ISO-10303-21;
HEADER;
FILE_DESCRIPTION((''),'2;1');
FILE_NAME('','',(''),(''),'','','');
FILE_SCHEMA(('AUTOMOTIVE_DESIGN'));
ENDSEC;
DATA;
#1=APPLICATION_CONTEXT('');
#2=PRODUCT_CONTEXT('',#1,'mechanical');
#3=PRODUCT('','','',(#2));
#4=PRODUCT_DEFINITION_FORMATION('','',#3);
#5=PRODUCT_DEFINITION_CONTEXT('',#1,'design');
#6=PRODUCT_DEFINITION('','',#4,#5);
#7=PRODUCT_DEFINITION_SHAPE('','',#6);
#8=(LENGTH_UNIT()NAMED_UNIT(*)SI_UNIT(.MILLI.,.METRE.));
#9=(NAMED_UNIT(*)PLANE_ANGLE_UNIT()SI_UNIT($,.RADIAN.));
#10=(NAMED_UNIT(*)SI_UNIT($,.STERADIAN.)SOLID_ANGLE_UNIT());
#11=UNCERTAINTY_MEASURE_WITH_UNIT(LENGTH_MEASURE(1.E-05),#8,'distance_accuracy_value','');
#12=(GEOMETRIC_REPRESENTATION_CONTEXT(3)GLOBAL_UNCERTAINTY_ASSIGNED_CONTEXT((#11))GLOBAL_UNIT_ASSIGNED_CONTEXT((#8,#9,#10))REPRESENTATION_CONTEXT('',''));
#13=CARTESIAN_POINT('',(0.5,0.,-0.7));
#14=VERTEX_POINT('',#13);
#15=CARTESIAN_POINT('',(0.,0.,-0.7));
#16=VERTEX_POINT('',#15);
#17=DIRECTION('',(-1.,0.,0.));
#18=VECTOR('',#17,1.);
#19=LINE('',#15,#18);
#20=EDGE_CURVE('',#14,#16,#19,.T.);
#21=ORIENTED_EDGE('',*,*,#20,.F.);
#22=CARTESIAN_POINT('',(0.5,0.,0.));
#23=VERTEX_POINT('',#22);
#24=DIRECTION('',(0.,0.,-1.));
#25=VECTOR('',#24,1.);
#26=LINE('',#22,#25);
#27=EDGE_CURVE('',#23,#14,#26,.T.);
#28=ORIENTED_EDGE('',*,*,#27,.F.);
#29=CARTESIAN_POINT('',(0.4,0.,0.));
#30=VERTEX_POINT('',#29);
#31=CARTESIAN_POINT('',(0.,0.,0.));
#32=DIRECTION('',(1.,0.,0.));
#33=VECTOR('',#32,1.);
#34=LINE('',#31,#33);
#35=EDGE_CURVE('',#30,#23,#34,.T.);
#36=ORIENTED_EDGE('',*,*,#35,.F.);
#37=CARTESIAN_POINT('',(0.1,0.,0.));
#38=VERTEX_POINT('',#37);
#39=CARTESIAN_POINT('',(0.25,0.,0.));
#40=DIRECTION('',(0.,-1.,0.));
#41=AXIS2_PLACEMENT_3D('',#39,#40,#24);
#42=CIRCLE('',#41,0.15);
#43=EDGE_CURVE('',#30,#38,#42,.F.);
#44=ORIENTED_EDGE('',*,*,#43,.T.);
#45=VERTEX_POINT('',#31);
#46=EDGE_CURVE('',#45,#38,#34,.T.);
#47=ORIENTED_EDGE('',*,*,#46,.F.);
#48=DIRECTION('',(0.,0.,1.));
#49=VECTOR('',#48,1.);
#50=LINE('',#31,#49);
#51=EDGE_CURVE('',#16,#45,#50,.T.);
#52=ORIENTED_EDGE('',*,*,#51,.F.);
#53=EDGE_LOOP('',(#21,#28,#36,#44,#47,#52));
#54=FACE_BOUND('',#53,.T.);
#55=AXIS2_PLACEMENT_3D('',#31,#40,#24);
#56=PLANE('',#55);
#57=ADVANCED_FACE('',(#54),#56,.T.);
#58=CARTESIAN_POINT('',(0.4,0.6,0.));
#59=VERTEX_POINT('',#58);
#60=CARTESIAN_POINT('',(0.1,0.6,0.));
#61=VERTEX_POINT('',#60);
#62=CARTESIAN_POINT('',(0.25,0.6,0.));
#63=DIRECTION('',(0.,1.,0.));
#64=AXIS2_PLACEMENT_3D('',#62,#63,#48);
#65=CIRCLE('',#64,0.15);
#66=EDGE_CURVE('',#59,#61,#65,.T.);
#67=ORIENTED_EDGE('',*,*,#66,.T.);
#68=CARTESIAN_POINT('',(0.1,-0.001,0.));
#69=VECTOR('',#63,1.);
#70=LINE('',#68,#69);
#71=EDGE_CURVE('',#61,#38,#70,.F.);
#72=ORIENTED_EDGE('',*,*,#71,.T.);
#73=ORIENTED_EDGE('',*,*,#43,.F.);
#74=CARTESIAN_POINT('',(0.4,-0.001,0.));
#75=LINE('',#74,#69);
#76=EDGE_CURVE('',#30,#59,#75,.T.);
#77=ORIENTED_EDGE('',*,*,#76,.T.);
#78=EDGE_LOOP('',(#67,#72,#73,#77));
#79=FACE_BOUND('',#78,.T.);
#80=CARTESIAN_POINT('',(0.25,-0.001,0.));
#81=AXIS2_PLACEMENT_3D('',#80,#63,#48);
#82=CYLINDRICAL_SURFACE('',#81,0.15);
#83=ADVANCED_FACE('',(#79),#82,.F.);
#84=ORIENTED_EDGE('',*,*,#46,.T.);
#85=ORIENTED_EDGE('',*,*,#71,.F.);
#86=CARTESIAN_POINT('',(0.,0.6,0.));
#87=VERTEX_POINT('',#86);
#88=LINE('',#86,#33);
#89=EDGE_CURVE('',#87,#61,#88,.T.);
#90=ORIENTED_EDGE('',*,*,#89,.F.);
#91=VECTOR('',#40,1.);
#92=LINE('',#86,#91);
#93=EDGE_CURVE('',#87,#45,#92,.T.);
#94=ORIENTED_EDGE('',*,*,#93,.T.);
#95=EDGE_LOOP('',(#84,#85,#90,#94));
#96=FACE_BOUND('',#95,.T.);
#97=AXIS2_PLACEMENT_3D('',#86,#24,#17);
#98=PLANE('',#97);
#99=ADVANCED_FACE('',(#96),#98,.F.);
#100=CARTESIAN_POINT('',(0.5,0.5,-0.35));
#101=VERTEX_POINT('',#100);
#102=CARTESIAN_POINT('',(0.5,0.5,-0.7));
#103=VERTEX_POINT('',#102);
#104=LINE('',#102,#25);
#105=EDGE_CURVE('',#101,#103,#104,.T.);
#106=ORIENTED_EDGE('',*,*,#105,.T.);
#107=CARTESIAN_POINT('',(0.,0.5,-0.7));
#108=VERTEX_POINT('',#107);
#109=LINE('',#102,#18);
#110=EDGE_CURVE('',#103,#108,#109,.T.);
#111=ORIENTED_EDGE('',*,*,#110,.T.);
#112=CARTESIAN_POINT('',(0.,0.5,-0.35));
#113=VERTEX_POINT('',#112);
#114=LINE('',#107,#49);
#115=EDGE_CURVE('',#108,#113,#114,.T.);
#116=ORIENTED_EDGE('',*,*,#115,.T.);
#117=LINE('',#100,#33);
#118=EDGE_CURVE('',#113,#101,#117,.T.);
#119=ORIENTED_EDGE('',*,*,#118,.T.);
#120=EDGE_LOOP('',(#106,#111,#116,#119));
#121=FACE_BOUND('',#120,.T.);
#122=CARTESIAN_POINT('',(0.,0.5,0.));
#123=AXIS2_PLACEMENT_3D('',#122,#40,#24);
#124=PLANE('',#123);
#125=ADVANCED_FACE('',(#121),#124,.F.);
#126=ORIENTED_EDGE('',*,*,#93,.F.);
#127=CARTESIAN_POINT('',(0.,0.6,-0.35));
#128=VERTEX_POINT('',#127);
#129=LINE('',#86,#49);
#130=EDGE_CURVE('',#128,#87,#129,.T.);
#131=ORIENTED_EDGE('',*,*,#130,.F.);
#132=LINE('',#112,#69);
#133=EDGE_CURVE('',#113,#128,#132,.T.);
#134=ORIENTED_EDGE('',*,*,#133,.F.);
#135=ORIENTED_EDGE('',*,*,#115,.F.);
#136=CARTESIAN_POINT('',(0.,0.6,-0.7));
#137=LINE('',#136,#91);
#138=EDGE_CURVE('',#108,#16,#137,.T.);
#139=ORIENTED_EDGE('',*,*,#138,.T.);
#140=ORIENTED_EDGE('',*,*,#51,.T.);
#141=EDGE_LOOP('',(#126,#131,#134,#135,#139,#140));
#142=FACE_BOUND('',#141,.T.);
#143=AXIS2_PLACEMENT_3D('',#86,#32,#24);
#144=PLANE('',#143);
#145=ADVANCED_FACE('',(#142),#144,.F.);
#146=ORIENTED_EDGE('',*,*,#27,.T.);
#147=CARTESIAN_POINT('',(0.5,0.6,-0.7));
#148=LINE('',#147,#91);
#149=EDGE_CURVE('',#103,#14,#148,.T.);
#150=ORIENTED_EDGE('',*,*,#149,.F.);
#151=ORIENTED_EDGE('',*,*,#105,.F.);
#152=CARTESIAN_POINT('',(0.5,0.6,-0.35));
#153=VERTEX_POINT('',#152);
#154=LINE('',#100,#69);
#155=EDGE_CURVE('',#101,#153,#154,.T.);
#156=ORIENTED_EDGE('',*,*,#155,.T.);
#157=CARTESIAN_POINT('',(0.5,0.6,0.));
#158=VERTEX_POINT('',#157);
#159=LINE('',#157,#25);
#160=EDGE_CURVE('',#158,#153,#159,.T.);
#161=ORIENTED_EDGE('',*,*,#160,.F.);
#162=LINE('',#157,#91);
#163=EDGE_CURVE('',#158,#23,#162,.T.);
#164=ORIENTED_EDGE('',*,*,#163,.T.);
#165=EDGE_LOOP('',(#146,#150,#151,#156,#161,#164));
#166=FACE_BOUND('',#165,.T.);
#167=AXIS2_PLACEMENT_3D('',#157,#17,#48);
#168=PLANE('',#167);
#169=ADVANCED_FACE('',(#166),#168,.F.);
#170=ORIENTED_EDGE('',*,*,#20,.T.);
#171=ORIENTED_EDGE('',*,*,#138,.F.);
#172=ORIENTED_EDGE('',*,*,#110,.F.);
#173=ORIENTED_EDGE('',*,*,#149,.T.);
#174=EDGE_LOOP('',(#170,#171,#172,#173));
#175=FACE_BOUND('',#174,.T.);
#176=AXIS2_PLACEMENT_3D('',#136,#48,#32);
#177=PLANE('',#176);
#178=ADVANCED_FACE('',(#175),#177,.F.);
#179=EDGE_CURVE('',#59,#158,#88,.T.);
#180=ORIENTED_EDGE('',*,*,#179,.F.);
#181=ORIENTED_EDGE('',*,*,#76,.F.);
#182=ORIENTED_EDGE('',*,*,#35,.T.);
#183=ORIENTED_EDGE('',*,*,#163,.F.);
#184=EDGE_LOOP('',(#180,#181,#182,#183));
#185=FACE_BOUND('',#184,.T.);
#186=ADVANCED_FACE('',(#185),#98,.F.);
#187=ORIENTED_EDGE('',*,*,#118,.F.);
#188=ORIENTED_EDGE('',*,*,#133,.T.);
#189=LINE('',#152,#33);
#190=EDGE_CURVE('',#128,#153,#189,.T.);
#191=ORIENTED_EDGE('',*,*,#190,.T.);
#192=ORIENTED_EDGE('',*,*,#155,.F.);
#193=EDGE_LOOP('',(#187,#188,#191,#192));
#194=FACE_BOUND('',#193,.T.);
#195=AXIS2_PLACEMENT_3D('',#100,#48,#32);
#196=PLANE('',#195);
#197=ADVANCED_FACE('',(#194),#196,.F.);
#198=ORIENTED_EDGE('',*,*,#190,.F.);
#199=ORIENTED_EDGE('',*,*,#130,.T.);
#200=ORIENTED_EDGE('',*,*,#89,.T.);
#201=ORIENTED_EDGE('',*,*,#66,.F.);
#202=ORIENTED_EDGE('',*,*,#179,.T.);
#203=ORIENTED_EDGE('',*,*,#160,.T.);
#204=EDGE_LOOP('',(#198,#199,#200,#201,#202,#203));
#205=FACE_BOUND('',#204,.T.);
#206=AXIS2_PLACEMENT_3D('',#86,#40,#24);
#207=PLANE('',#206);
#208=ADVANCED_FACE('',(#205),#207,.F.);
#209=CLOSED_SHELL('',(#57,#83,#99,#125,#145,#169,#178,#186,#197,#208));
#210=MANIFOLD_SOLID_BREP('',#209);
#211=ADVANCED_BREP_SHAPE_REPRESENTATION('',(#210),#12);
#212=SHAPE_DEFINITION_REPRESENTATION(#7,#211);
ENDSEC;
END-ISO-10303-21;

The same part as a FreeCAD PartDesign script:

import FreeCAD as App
import Part
import Sketcher
from FreeCAD import Vector

doc = App.newDocument("Part")
body = doc.addObject("PartDesign::Body", "Body")

# Sketch on XZ plane
sketch1 = doc.addObject("Sketcher::SketchObject", "Sketch")
body.addObject(sketch1)
sketch1.AttachmentSupport = (doc.XZ_Plane, [""])
sketch1.MapMode = "FlatFace"
sketch1.addGeometry(Part.LineSegment(Vector(0, -0.7, 0), Vector(0, 0, 0)), False)
sketch1.addGeometry(Part.LineSegment(Vector(0, 0, 0), Vector(0.5, 0, 0)), False)
sketch1.addGeometry(Part.LineSegment(Vector(0.5, 0, 0), Vector(0.5, -0.7, 0)), False)
sketch1.addGeometry(Part.LineSegment(Vector(0.5, -0.7, 0), Vector(0, -0.7, 0)), False)
sketch1.addConstraint(Sketcher.Constraint("Coincident", 0, 2, 1, 1))
sketch1.addConstraint(Sketcher.Constraint("Coincident", 1, 2, 2, 1))
sketch1.addConstraint(Sketcher.Constraint("Coincident", 2, 2, 3, 1))
sketch1.addConstraint(Sketcher.Constraint("Coincident", 3, 2, 0, 1))
sketch1.addConstraint(Sketcher.Constraint("Vertical", 0))
sketch1.addConstraint(Sketcher.Constraint("Horizontal", 1))
sketch1.addConstraint(Sketcher.Constraint("Vertical", 2))
sketch1.addConstraint(Sketcher.Constraint("Horizontal", 3))
sketch1.addConstraint(Sketcher.Constraint("Coincident", 0, 2, -1, 1))
sketch1.addConstraint(Sketcher.Constraint("DistanceX", 1, 1, 1, 2, 0.5))
sketch1.addConstraint(Sketcher.Constraint("DistanceY", 0, 1, 0, 2, 0.7))
pad1 = doc.addObject("PartDesign::Pad", "Pad")
body.addObject(pad1)
pad1.Profile = sketch1
pad1.Length = 0.6
pad1.Reversed = True

# Sketch on XZ plane
sketch2 = doc.addObject("Sketcher::SketchObject", "Sketch001")
body.addObject(sketch2)
sketch2.AttachmentSupport = (doc.XZ_Plane, [""])
sketch2.MapMode = "FlatFace"
sketch2.AttachmentOffset = App.Placement(Vector(0, 0, -0.6), App.Rotation())
sketch2.addGeometry(Part.Circle(Vector(0.25, 0, 0), Vector(0, 0, 1), 0.15), False)
sketch2.addConstraint(Sketcher.Constraint("PointOnObject", 0, 3, -1))
sketch2.addConstraint(Sketcher.Constraint("Diameter", 0, 0.3))
sketch2.addConstraint(Sketcher.Constraint("DistanceX", -1, 1, 0, 3, 0.25))
pocket1 = doc.addObject("PartDesign::Pocket", "Pocket")
body.addObject(pocket1)
pocket1.Profile = sketch2
pocket1.Type = "UpToFirst"
pocket1.Reversed = True

# Sketch on XZ plane
sketch3 = doc.addObject("Sketcher::SketchObject", "Sketch002")
body.addObject(sketch3)
sketch3.AttachmentSupport = (doc.XZ_Plane, [""])
sketch3.MapMode = "FlatFace"
sketch3.AttachmentOffset = App.Placement(Vector(0, 0, -0.6), App.Rotation())
sketch3.addGeometry(Part.LineSegment(Vector(0, -0.7, 0), Vector(0, -0.35, 0)), False)
sketch3.addGeometry(Part.LineSegment(Vector(0, -0.35, 0), Vector(0.5, -0.35, 0)), False)
sketch3.addGeometry(Part.LineSegment(Vector(0.5, -0.35, 0), Vector(0.5, -0.7, 0)), False)
sketch3.addGeometry(Part.LineSegment(Vector(0.5, -0.7, 0), Vector(0, -0.7, 0)), False)
sketch3.addConstraint(Sketcher.Constraint("Coincident", 0, 2, 1, 1))
sketch3.addConstraint(Sketcher.Constraint("Coincident", 1, 2, 2, 1))
sketch3.addConstraint(Sketcher.Constraint("Coincident", 2, 2, 3, 1))
sketch3.addConstraint(Sketcher.Constraint("Coincident", 3, 2, 0, 1))
sketch3.addConstraint(Sketcher.Constraint("Vertical", 0))
sketch3.addConstraint(Sketcher.Constraint("Horizontal", 1))
sketch3.addConstraint(Sketcher.Constraint("Vertical", 2))
sketch3.addConstraint(Sketcher.Constraint("Horizontal", 3))
sketch3.addConstraint(Sketcher.Constraint("PointOnObject", 0, 2, -2))
sketch3.addConstraint(Sketcher.Constraint("DistanceX", 1, 1, 1, 2, 0.5))
sketch3.addConstraint(Sketcher.Constraint("DistanceY", 0, 1, 0, 2, 0.35))
sketch3.addConstraint(Sketcher.Constraint("DistanceY", 2, 2, -1, 1, 0.7))
pocket2 = doc.addObject("PartDesign::Pocket", "Pocket001")
body.addObject(pocket2)
pocket2.Profile = sketch3
pocket2.Length = 0.1
pocket2.Reversed = True

doc.recompute()
